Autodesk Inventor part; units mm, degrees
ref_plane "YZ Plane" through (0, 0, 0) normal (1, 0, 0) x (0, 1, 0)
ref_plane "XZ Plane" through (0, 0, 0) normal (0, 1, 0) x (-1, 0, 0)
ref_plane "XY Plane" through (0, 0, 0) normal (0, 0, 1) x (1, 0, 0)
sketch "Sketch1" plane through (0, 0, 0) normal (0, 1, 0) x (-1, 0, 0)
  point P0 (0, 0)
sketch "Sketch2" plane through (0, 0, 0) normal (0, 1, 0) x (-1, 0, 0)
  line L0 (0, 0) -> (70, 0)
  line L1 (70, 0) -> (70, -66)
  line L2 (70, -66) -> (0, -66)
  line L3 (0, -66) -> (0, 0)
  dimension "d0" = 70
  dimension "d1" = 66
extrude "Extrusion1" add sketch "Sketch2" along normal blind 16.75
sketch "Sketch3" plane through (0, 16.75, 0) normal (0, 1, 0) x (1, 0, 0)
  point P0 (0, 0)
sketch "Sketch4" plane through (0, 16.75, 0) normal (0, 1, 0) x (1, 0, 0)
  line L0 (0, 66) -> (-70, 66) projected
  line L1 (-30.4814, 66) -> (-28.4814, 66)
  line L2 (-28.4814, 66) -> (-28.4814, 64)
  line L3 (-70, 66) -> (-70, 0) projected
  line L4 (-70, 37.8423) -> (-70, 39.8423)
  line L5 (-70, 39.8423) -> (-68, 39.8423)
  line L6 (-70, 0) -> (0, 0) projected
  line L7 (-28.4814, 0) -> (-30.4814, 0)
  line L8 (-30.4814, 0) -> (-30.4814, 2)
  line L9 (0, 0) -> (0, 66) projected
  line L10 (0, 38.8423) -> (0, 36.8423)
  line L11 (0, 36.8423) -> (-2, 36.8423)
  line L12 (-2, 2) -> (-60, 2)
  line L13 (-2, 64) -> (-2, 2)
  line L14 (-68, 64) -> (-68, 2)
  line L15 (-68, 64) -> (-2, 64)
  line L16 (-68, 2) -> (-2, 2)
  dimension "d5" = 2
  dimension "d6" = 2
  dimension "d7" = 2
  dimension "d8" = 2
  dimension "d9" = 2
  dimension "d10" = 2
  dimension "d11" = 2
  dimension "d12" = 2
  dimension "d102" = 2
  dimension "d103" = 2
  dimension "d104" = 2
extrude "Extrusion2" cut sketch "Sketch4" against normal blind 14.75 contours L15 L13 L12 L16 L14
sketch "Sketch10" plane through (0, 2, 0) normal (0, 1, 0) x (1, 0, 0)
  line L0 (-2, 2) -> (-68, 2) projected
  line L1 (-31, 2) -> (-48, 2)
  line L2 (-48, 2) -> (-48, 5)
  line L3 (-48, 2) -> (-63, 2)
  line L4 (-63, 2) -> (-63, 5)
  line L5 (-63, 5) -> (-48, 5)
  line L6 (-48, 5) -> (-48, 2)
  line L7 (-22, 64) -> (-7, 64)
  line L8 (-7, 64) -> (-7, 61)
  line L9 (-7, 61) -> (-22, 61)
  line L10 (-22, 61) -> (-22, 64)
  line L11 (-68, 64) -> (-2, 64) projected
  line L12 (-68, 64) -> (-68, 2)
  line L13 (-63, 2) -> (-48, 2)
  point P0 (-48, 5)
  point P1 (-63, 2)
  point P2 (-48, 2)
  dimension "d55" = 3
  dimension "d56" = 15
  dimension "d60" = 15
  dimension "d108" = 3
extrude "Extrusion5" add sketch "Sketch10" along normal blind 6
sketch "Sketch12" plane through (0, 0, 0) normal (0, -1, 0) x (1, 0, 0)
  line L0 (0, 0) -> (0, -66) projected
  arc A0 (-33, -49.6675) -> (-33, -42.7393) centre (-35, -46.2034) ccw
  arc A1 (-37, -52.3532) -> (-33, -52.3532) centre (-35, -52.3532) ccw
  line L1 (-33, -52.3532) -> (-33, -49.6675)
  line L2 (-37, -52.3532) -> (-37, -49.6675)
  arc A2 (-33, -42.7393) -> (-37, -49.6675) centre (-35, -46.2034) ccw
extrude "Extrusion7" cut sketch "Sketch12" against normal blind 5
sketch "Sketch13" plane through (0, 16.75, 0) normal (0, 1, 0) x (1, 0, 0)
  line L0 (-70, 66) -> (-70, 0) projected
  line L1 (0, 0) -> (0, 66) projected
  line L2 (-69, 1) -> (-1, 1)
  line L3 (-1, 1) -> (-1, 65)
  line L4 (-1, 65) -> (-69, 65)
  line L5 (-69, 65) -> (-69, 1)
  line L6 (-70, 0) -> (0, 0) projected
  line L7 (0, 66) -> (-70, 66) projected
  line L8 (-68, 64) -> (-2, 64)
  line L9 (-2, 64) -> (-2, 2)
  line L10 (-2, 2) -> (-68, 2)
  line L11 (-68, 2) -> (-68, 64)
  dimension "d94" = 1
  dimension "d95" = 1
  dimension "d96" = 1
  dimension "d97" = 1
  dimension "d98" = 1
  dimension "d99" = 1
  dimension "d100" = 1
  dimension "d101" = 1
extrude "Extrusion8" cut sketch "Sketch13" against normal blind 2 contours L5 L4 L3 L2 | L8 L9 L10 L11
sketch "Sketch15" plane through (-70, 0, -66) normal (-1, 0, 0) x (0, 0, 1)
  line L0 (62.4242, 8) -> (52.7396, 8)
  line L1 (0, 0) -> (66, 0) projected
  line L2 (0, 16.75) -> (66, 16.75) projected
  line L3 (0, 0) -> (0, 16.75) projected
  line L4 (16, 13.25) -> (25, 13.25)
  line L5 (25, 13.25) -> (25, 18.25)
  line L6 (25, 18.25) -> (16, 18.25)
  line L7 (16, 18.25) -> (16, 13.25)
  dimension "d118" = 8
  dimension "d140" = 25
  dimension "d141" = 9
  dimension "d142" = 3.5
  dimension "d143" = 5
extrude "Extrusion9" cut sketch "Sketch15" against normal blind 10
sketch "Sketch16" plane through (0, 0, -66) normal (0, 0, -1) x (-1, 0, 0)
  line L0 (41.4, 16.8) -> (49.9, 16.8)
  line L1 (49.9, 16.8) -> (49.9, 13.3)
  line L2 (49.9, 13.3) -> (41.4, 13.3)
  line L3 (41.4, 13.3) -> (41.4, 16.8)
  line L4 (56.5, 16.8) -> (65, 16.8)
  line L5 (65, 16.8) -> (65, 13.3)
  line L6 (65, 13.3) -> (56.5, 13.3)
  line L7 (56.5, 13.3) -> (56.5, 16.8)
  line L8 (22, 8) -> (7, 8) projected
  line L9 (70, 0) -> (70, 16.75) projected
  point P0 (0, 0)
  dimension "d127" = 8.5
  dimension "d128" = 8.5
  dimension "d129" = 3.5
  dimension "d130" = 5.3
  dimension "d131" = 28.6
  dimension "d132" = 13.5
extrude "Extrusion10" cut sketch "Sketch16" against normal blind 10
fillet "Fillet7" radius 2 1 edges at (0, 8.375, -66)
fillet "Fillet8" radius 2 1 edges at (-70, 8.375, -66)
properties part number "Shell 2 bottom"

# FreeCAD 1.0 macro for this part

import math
import FreeCAD as App
import Part
import Sketcher
Q = App.Units.Quantity


def edges_at(feature, points):
    """Names of the edges that pass closest to the given points."""
    edges = feature.Shape.Edges
    near = lambda p: min(range(len(edges)), key=lambda i: edges[i].distToShape(Part.Vertex(*p))[0])
    return sorted({f"Edge{near(p) + 1}" for p in points})


def add_polygon(sketch, points):
    """Adds a closed chain of lines whose ends are joined by coincident constraints."""
    first, n = sketch.GeometryCount, len(points)
    for a, b in zip(points, points[1:] + points[:1]):
        sketch.addGeometry(Part.LineSegment(App.Vector(*a, 0), App.Vector(*b, 0)), False)
    for i in range(n):
        sketch.addConstraint(Sketcher.Constraint("Coincident", first + i, 2, first + (i + 1) % n, 1))

doc = App.newDocument("Part")
body = doc.addObject("PartDesign::Body", "Body")

# Sketch on XZ plane
sketch1 = body.newObject("Sketcher::SketchObject", "Sketch")
sketch1.AttachmentSupport = (doc.getObject("XZ_Plane"), [""])
sketch1.MapMode = "FlatFace"
add_polygon(sketch1, [(-70, 0), (0, 0), (0, -66), (-70, -66)])  # lines 0-3
sketch1.addConstraint([
    Sketcher.Constraint("Horizontal", 0),
    Sketcher.Constraint("Vertical", 1),
    Sketcher.Constraint("Horizontal", 2),
    Sketcher.Constraint("Vertical", 3),
    Sketcher.Constraint("Coincident", 0, 2, -1, 1),
    Sketcher.Constraint("DistanceX", 0, 1, 0, 2, Q("70 mm")),
    Sketcher.Constraint("DistanceY", 1, 2, 1, 1, Q("66 mm")),
])
pad1 = body.newObject("PartDesign::Pad", "Pad")
pad1.Profile = sketch1
pad1.Length = 16.75
pad1.Reversed = True

# Sketch on XZ plane
sketch2 = body.newObject("Sketcher::SketchObject", "Sketch001")
sketch2.AttachmentSupport = (doc.getObject("XZ_Plane"), [""])
sketch2.MapMode = "FlatFace"
sketch2.AttachmentOffset = App.Placement(App.Vector(0, 0, -16.75), App.Rotation())
add_polygon(sketch2, [(-2, -64), (-68, -64), (-68, -2), (-2, -2)])  # lines 0-3
sketch2.addConstraint([
    Sketcher.Constraint("Horizontal", 0),
    Sketcher.Constraint("Vertical", 1),
    Sketcher.Constraint("Horizontal", 2),
    Sketcher.Constraint("Vertical", 3),
    Sketcher.Constraint("DistanceY", 1, 2, -1, 1, Q("2 mm")),
    Sketcher.Constraint("DistanceX", 2, 2, -1, 1, Q("2 mm")),
    Sketcher.Constraint("DistanceX", 0, 2, 0, 1, Q("66 mm")),
    Sketcher.Constraint("DistanceY", 1, 1, 1, 2, Q("62 mm")),
])
pocket1 = body.newObject("PartDesign::Pocket", "Pocket")
pocket1.Profile = sketch2
pocket1.Length = 14.75
pocket1.Reversed = True

# Sketch on XZ plane
sketch3 = body.newObject("Sketcher::SketchObject", "Sketch002")
sketch3.AttachmentSupport = (doc.getObject("XZ_Plane"), [""])
sketch3.MapMode = "FlatFace"
sketch3.AttachmentOffset = App.Placement(App.Vector(0, 0, -2), App.Rotation())
add_polygon(sketch3, [(-7, -64), (-22, -64), (-22, -61), (-7, -61)])  # lines 0-3
add_polygon(sketch3, [(-63, -2), (-48, -2), (-48, -5), (-63, -5)])  # lines 4-7
sketch3.addConstraint([
    Sketcher.Constraint("Horizontal", 0),
    Sketcher.Constraint("Vertical", 1),
    Sketcher.Constraint("Horizontal", 2),
    Sketcher.Constraint("Vertical", 3),
    Sketcher.Constraint("Horizontal", 4),
    Sketcher.Constraint("Vertical", 5),
    Sketcher.Constraint("Horizontal", 6),
    Sketcher.Constraint("Vertical", 7),
    Sketcher.Constraint("Equal", 2, 4),
    Sketcher.Constraint("Equal", 3, 5),
    Sketcher.Constraint("DistanceX", 0, 2, 0, 1, Q("15 mm")),
    Sketcher.Constraint("DistanceY", 1, 1, 1, 2, Q("3 mm")),
    Sketcher.Constraint("DistanceX", 0, 2, -1, 1, Q("22 mm")),
    Sketcher.Constraint("DistanceY", 0, 2, -1, 1, Q("64 mm")),
    Sketcher.Constraint("DistanceX", 4, 2, -1, 1, Q("48 mm")),
    Sketcher.Constraint("DistanceY", 4, 2, -1, 1, Q("2 mm")),
])
pad2 = body.newObject("PartDesign::Pad", "Pad001")
pad2.Profile = sketch3
pad2.Length = 6
pad2.Reversed = True

# Sketch on XZ plane
sketch4 = body.newObject("Sketcher::SketchObject", "Sketch003")
sketch4.AttachmentSupport = (doc.getObject("XZ_Plane"), [""])
sketch4.MapMode = "FlatFace"
sketch4.addGeometry([
    Part.LineSegment(App.Vector(-33, -52.4, 0), App.Vector(-33, -49.7, 0)),
    Part.ArcOfCircle(Part.Circle(App.Vector(-35, -46.2, 0), App.Vector(0, 0, 1), 4), math.radians(-60), math.radians(240)),
    Part.LineSegment(App.Vector(-37, -49.7, 0), App.Vector(-37, -52.4, 0)),
    Part.ArcOfCircle(Part.Circle(App.Vector(-35, -52.4, 0), App.Vector(0, 0, 1), 2), math.radians(180), math.radians(360)),
], False)
sketch4.addConstraint([
    Sketcher.Constraint("Coincident", 0, 2, 1, 1),
    Sketcher.Constraint("Coincident", 1, 2, 2, 1),
    Sketcher.Constraint("Tangent", 2, 2, 3, 1),
    Sketcher.Constraint("Tangent", 3, 2, 0, 1),
    Sketcher.Constraint("Vertical", 0),
    Sketcher.Constraint("Vertical", 2),
    Sketcher.Constraint("Horizontal", 0, 2, 1, 2),
    Sketcher.Constraint("Radius", 1, Q("4 mm")),
    Sketcher.Constraint("Radius", 3, Q("2 mm")),
    Sketcher.Constraint("DistanceX", 1, 3, -1, 1, Q("35 mm")),
    Sketcher.Constraint("DistanceY", 0, 1, 0, 2, Q("2.6857 mm")),
    Sketcher.Constraint("DistanceY", 1, 3, -1, 1, Q("46.2034 mm")),
])
pocket2 = body.newObject("PartDesign::Pocket", "Pocket001")
pocket2.Profile = sketch4
pocket2.Length = 5

# Sketch on XZ plane
sketch5 = body.newObject("Sketcher::SketchObject", "Sketch004")
sketch5.AttachmentSupport = (doc.getObject("XZ_Plane"), [""])
sketch5.MapMode = "FlatFace"
sketch5.AttachmentOffset = App.Placement(App.Vector(0, 0, -16.75), App.Rotation())
add_polygon(sketch5, [(-69, -65), (-69, -1), (-1, -1), (-1, -65)])  # lines 0-3
sketch5.addConstraint([
    Sketcher.Constraint("Vertical", 0),
    Sketcher.Constraint("Horizontal", 1),
    Sketcher.Constraint("Vertical", 2),
    Sketcher.Constraint("Horizontal", 3),
    Sketcher.Constraint("DistanceY", 0, 2, -1, 1, Q("1 mm")),
    Sketcher.Constraint("DistanceX", 1, 2, -1, 1, Q("1 mm")),
    Sketcher.Constraint("DistanceX", 1, 1, 1, 2, Q("68 mm")),
    Sketcher.Constraint("DistanceY", 0, 1, 0, 2, Q("64 mm")),
])
pocket3 = body.newObject("PartDesign::Pocket", "Pocket002")
pocket3.Profile = sketch5
pocket3.Length = 2
pocket3.Reversed = True

# Sketch on YZ plane
sketch6 = body.newObject("Sketcher::SketchObject", "Sketch005")
sketch6.AttachmentSupport = (doc.getObject("YZ_Plane"), [""])
sketch6.MapMode = "FlatFace"
sketch6.AttachmentOffset = App.Placement(App.Vector(0, 0, -70), App.Rotation())
add_polygon(sketch6, [(18, -50), (13, -50), (13, -41), (18, -41)])  # lines 0-3
sketch6.addConstraint([
    Sketcher.Constraint("Horizontal", 0),
    Sketcher.Constraint("Vertical", 1),
    Sketcher.Constraint("Horizontal", 2),
    Sketcher.Constraint("Vertical", 3),
    Sketcher.Constraint("DistanceX", 0, 2, 0, 1, Q("5 mm")),
    Sketcher.Constraint("DistanceY", 1, 1, 1, 2, Q("9 mm")),
    Sketcher.Constraint("DistanceY", 0, 2, -1, 1, Q("50 mm")),
    Sketcher.Constraint("DistanceX", -1, 1, 0, 2, Q("13.25 mm")),
])
pocket4 = body.newObject("PartDesign::Pocket", "Pocket003")
pocket4.Profile = sketch6
pocket4.Length = 10
pocket4.Reversed = True

# Sketch on XY plane
sketch7 = body.newObject("Sketcher::SketchObject", "Sketch006")
sketch7.AttachmentSupport = (doc.getObject("XY_Plane"), [""])
sketch7.MapMode = "FlatFace"
sketch7.AttachmentOffset = App.Placement(App.Vector(0, 0, -66), App.Rotation())
add_polygon(sketch7, [(-49.9, 16.8), (-41.4, 16.8), (-41.4, 13.3), (-49.9, 13.3)])  # lines 0-3
add_polygon(sketch7, [(-65, 16.8), (-56.5, 16.8), (-56.5, 13.3), (-65, 13.3)])  # lines 4-7
sketch7.addConstraint([
    Sketcher.Constraint("Horizontal", 0),
    Sketcher.Constraint("Vertical", 1),
    Sketcher.Constraint("Horizontal", 2),
    Sketcher.Constraint("Vertical", 3),
    Sketcher.Constraint("Horizontal", 4),
    Sketcher.Constraint("Vertical", 5),
    Sketcher.Constraint("Horizontal", 6),
    Sketcher.Constraint("Vertical", 7),
    Sketcher.Constraint("Horizontal", 3, 2, 4, 2),
    Sketcher.Constraint("Horizontal", 2, 2, 5, 2),
    Sketcher.Constraint("Equal", 2, 4),
    Sketcher.Constraint("DistanceX", 0, 1, 0, 2, Q("8.5 mm")),
    Sketcher.Constraint("DistanceY", 1, 2, 1, 1, Q("3.5 mm")),
    Sketcher.Constraint("DistanceX", 6, 2, -1, 1, Q("65 mm")),
    Sketcher.Constraint("DistanceX", 0, 2, -1, 1, Q("41.4 mm")),
    Sketcher.Constraint("DistanceY", -1, 1, 0, 2, Q("16.8 mm")),
])
pocket5 = body.newObject("PartDesign::Pocket", "Pocket004")
pocket5.Profile = sketch7
pocket5.Length = 10
pocket5.Reversed = True
doc.recompute()

fillet = body.newObject("PartDesign::Fillet", "Fillet")
fillet.Base = (pocket5, edges_at(pocket5, [(0, 8.375, -66)]))
fillet.Radius = 2
doc.recompute()

fillet2 = body.newObject("PartDesign::Fillet", "Fillet001")
fillet2.Base = (fillet, edges_at(fillet, [(-70, 8.375, -66)]))
fillet2.Radius = 2

doc.recompute()
